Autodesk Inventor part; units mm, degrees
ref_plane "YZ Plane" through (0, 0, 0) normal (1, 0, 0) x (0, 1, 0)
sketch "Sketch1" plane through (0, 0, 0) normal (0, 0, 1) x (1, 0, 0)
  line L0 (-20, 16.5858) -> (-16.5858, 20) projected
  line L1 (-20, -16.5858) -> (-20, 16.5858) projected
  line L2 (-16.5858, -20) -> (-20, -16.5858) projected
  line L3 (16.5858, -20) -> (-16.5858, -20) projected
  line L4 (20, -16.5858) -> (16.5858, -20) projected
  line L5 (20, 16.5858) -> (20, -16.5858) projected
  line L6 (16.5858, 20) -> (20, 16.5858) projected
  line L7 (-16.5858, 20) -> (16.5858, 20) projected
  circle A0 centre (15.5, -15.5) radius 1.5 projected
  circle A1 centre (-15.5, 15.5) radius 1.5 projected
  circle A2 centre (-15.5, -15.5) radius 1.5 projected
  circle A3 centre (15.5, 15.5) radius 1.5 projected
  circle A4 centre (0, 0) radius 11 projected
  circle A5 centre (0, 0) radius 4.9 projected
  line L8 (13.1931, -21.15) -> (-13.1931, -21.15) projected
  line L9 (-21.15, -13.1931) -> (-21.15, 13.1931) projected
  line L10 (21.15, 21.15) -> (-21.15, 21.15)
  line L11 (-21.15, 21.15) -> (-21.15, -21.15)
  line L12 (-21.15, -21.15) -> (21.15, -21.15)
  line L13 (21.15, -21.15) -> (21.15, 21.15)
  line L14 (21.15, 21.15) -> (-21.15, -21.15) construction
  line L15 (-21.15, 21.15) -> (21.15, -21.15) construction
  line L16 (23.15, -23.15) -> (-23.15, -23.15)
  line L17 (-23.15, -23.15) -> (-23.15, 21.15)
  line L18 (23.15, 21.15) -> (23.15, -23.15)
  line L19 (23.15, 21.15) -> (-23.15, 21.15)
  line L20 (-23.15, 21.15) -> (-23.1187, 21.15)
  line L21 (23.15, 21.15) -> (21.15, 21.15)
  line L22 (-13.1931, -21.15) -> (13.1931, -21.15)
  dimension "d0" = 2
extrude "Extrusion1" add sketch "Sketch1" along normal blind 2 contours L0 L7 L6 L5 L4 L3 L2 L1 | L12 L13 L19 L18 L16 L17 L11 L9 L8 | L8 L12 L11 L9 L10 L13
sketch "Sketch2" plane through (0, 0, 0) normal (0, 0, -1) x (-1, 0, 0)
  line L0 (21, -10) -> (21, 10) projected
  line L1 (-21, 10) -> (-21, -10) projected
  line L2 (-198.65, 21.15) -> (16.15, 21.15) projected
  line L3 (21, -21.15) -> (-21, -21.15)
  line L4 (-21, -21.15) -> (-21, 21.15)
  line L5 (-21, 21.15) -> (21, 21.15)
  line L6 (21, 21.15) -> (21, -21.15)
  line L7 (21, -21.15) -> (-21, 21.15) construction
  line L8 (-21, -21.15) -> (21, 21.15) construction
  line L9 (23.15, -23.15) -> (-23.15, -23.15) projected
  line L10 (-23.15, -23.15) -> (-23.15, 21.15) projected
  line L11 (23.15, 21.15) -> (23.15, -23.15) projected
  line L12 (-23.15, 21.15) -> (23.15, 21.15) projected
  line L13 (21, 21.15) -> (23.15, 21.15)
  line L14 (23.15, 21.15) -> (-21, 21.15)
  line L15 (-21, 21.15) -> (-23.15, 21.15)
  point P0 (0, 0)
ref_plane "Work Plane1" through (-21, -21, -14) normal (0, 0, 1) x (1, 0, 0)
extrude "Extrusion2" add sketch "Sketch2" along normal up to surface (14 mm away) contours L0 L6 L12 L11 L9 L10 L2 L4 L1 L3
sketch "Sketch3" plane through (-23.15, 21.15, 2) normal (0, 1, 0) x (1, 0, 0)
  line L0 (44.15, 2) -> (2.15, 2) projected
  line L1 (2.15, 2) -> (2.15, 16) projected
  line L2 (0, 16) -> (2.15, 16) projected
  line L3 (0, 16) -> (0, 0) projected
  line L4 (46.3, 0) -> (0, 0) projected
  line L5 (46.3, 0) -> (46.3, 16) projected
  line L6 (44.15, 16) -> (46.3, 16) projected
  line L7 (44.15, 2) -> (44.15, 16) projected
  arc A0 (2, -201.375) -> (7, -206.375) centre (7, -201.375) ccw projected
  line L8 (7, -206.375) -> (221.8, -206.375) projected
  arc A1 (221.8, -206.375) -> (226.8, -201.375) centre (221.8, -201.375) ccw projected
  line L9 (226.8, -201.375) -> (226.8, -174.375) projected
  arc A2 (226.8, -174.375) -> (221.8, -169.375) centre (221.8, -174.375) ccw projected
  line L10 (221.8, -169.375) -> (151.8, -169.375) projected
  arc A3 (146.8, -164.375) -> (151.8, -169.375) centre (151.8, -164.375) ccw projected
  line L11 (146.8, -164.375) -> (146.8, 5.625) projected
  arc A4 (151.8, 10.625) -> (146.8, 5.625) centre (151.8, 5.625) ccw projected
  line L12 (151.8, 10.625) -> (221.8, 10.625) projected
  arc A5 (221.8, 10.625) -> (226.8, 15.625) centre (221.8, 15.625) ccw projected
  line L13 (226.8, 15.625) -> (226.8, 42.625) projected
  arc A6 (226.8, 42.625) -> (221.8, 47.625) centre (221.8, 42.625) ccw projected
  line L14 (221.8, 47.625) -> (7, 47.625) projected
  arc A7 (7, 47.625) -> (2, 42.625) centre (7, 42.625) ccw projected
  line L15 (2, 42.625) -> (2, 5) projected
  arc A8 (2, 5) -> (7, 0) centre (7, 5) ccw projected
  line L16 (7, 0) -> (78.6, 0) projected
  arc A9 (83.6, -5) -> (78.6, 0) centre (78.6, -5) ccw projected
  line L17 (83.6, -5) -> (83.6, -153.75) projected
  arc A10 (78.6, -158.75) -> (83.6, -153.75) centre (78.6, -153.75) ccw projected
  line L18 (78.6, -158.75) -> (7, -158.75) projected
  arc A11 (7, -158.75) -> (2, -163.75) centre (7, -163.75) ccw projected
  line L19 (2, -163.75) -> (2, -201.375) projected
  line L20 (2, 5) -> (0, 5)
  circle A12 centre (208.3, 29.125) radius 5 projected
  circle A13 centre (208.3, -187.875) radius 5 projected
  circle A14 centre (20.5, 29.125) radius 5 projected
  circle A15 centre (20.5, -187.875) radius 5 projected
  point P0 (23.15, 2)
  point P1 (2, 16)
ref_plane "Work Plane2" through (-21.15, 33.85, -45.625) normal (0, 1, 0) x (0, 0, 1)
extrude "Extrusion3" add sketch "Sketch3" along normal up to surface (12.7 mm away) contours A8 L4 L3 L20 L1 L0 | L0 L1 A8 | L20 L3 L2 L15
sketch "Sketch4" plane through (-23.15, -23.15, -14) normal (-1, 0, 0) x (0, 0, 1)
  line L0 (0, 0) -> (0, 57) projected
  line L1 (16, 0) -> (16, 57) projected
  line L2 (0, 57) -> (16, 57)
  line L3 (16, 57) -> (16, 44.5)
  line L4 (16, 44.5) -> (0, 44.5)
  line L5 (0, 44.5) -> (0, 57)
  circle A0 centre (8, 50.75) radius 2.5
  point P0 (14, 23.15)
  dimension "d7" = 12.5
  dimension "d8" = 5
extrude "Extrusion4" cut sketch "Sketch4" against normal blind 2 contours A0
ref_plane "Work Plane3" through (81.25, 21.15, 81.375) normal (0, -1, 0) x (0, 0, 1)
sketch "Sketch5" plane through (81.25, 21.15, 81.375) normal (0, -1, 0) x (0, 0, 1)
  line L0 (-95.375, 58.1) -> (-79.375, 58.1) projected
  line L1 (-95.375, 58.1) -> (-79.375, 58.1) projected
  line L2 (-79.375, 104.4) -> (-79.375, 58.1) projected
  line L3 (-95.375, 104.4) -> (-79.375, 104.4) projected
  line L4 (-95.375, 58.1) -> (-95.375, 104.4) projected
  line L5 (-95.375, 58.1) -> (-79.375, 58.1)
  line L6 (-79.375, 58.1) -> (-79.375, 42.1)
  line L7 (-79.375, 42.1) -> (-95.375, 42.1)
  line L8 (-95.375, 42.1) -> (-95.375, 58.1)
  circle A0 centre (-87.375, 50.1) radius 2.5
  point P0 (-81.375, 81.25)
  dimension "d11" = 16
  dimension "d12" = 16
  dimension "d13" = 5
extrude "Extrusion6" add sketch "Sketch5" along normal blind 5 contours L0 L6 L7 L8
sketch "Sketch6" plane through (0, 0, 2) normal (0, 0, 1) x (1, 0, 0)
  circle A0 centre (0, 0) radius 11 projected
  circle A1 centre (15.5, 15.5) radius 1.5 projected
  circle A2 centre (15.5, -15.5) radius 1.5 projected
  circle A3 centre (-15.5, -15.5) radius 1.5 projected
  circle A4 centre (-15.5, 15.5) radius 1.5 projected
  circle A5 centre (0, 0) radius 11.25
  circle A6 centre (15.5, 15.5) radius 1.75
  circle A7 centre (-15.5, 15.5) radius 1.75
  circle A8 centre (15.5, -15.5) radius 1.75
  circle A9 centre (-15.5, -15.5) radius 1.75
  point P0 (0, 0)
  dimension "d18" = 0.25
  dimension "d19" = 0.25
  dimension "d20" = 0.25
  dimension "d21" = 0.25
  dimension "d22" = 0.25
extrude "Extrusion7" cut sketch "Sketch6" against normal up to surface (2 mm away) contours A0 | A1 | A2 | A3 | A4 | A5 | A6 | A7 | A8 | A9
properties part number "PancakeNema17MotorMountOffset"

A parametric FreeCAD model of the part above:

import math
import FreeCAD as App
import Part
import Sketcher

V = App.Vector


def add_polygon(sketch, points):
    """Adds a closed chain of lines whose ends are joined by coincident constraints."""
    first, n = sketch.GeometryCount, len(points)
    for a, b in zip(points, points[1:] + points[:1]):
        sketch.addGeometry(Part.LineSegment(App.Vector(*a, 0), App.Vector(*b, 0)), False)
    for i in range(n):
        sketch.addConstraint(Sketcher.Constraint("Coincident", first + i, 2, first + (i + 1) % n, 1))

doc = App.newDocument("Part")
body = doc.addObject("PartDesign::Body", "Body")

# Sketch on XY plane
sketch1 = body.newObject("Sketcher::SketchObject", "Sketch")
sketch1.AttachmentSupport = (doc.getObject("XY_Plane"), [""])
sketch1.MapMode = "FlatFace"
add_polygon(sketch1, [(-23.1, 21.1), (-23.1, -23.1), (23.1, -23.1), (23.1, 21.1)])  # lines 0-3
sketch1.addGeometry(Part.Circle(V(-15.5, -15.5, 0), V(0, 0, 1), 1.5), False)  # 4
sketch1.addGeometry(Part.Circle(V(15.5, -15.5, 0), V(0, 0, 1), 1.5), False)  # 5
sketch1.addGeometry(Part.Circle(V(-15.5, 15.5, 0), V(0, 0, 1), 1.5), False)  # 6
sketch1.addGeometry(Part.Circle(V(0, 0, 0), V(0, 0, 1), 11), False)  # 7
sketch1.addGeometry(Part.Circle(V(15.5, 15.5, 0), V(0, 0, 1), 1.5), False)  # 8
sketch1.addConstraint(Sketcher.Constraint("Vertical", 0))
sketch1.addConstraint(Sketcher.Constraint("Horizontal", 1))
sketch1.addConstraint(Sketcher.Constraint("Vertical", 2))
sketch1.addConstraint(Sketcher.Constraint("Horizontal", 3))
sketch1.addConstraint(Sketcher.Constraint("Coincident", 7, 3, -1, 1))
sketch1.addConstraint(Sketcher.Constraint("Equal", 4, 5))
sketch1.addConstraint(Sketcher.Constraint("Equal", 5, 6))
sketch1.addConstraint(Sketcher.Constraint("Equal", 6, 8))
sketch1.addConstraint(Sketcher.Constraint("Symmetric", 5, 3, 6, 3, -1, 1))
sketch1.addConstraint(Sketcher.Constraint("Symmetric", 4, 3, 8, 3, -1, 1))
sketch1.addConstraint(Sketcher.Constraint("Symmetric", 4, 3, 5, 3, -2))
sketch1.addConstraint(Sketcher.Constraint("Diameter", 4, 3.0))
sketch1.addConstraint(Sketcher.Constraint("Diameter", 7, 22.0))
sketch1.addConstraint(Sketcher.Constraint("DistanceX", 1, 1, 1, 2, 46.3))
sketch1.addConstraint(Sketcher.Constraint("DistanceY", 0, 2, 0, 1, 44.3))
sketch1.addConstraint(Sketcher.Constraint("DistanceX", 4, 3, 5, 3, 31.0))
sketch1.addConstraint(Sketcher.Constraint("DistanceY", 4, 3, 6, 3, 31.0))
sketch1.addConstraint(Sketcher.Constraint("DistanceX", 0, 2, -1, 1, 23.15))
sketch1.addConstraint(Sketcher.Constraint("DistanceY", 0, 2, -1, 1, 23.15))
pad1 = body.newObject("PartDesign::Pad", "Pad")
pad1.Profile = sketch1
pad1.Length = 2

# Sketch on XY plane
sketch2 = body.newObject("Sketcher::SketchObject", "Sketch001")
sketch2.AttachmentSupport = (doc.getObject("XY_Plane"), [""])
sketch2.MapMode = "FlatFace"
add_polygon(sketch2, [(-21, 21.1), (-21, -21.1), (21, -21.1), (21, 21.1), (23.1, 21.1), (23.1, -23.1), (-23.1, -23.1), (-23.1, 21.1)])  # lines 0-7
sketch2.addConstraint(Sketcher.Constraint("Vertical", 0))
sketch2.addConstraint(Sketcher.Constraint("Horizontal", 1))
sketch2.addConstraint(Sketcher.Constraint("Vertical", 2))
sketch2.addConstraint(Sketcher.Constraint("Horizontal", 3))
sketch2.addConstraint(Sketcher.Constraint("Vertical", 4))
sketch2.addConstraint(Sketcher.Constraint("Horizontal", 5))
sketch2.addConstraint(Sketcher.Constraint("Vertical", 6))
sketch2.addConstraint(Sketcher.Constraint("Horizontal", 7))
sketch2.addConstraint(Sketcher.Constraint("Symmetric", 0, 2, 2, 2, -1, 1))
sketch2.addConstraint(Sketcher.Constraint("Symmetric", 3, 2, 6, 2, -2))
sketch2.addConstraint(Sketcher.Constraint("DistanceX", 1, 1, 1, 2, 42.0))
sketch2.addConstraint(Sketcher.Constraint("DistanceX", 5, 2, 5, 1, 46.3))
sketch2.addConstraint(Sketcher.Constraint("DistanceY", 0, 2, 0, 1, 42.3))
sketch2.addConstraint(Sketcher.Constraint("DistanceY", 4, 2, 4, 1, 44.3))
pad2 = body.newObject("PartDesign::Pad", "Pad001")
pad2.Profile = sketch2
pad2.Length = 14
pad2.Reversed = True

# Sketch on XZ plane
sketch3 = body.newObject("Sketcher::SketchObject", "Sketch002")
sketch3.AttachmentSupport = (doc.getObject("XZ_Plane"), [""])
sketch3.MapMode = "FlatFace"
sketch3.AttachmentOffset = App.Placement(V(0, 0, -21.15), App.Rotation())
sketch3.addGeometry(Part.ArcOfCircle(Part.Circle(V(-16.1, -3, 0), V(0, 0, 1), 5), math.radians(90), math.radians(180)), False)
sketch3.addGeometry(Part.LineSegment(V(-21.1, -3, 0), V(-21.1, -14, 0)), False)
sketch3.addGeometry(Part.LineSegment(V(-21.1, -14, 0), V(-23.1, -14, 0)), False)
sketch3.addGeometry(Part.LineSegment(V(-23.1, -14, 0), V(-23.1, 2, 0)), False)
sketch3.addGeometry(Part.LineSegment(V(-23.1, 2, 0), V(-16.1, 2, 0)), False)
sketch3.addConstraint(Sketcher.Constraint("Tangent", 0, 2, 1, 1))
sketch3.addConstraint(Sketcher.Constraint("Coincident", 1, 2, 2, 1))
sketch3.addConstraint(Sketcher.Constraint("Coincident", 2, 2, 3, 1))
sketch3.addConstraint(Sketcher.Constraint("Coincident", 3, 2, 4, 1))
sketch3.addConstraint(Sketcher.Constraint("Tangent", 4, 2, 0, 1))
sketch3.addConstraint(Sketcher.Constraint("Vertical", 1))
sketch3.addConstraint(Sketcher.Constraint("Horizontal", 2))
sketch3.addConstraint(Sketcher.Constraint("Vertical", 3))
sketch3.addConstraint(Sketcher.Constraint("Horizontal", 4))
sketch3.addConstraint(Sketcher.Constraint("Radius", 0, 5.0))
sketch3.addConstraint(Sketcher.Constraint("DistanceX", 2, 2, 2, 1, 2.0))
sketch3.addConstraint(Sketcher.Constraint("DistanceY", 1, 2, 1, 1, 11.0))
sketch3.addConstraint(Sketcher.Constraint("DistanceY", 0, 3, -1, 1, 3.0))
sketch3.addConstraint(Sketcher.Constraint("DistanceX", 0, 3, -1, 1, 16.15))
pad3 = body.newObject("PartDesign::Pad", "Pad002")
pad3.Profile = sketch3
pad3.Length = 12.7
pad3.Reversed = True

# Sketch on YZ plane
sketch4 = body.newObject("Sketcher::SketchObject", "Sketch003")
sketch4.AttachmentSupport = (doc.getObject("YZ_Plane"), [""])
sketch4.MapMode = "FlatFace"
sketch4.AttachmentOffset = App.Placement(V(0, 0, -23.15), App.Rotation())
sketch4.addGeometry(Part.Circle(V(27.6, -6, 0), V(0, 0, 1), 2.5), False)
sketch4.addConstraint(Sketcher.Constraint("Diameter", 0, 5.0))
sketch4.addConstraint(Sketcher.Constraint("DistanceY", 0, 3, -1, 1, 6.0))
sketch4.addConstraint(Sketcher.Constraint("DistanceX", -1, 1, 0, 3, 27.6))
pocket1 = body.newObject("PartDesign::Pocket", "Pocket")
pocket1.Profile = sketch4
pocket1.Length = 2
pocket1.Reversed = True

# Sketch on XZ plane
sketch5 = body.newObject("Sketcher::SketchObject", "Sketch004")
sketch5.AttachmentSupport = (doc.getObject("XZ_Plane"), [""])
sketch5.MapMode = "FlatFace"
sketch5.AttachmentOffset = App.Placement(V(0, 0, -21.15), App.Rotation())
add_polygon(sketch5, [(23.1, 2), (23.1, -14), (39.1, -14), (39.1, 2)])  # lines 0-3
sketch5.addGeometry(Part.Circle(V(31.1, -6, 0), V(0, 0, 1), 2.5), False)  # 4
sketch5.addConstraint(Sketcher.Constraint("Vertical", 0))
sketch5.addConstraint(Sketcher.Constraint("Horizontal", 1))
sketch5.addConstraint(Sketcher.Constraint("Vertical", 2))
sketch5.addConstraint(Sketcher.Constraint("Horizontal", 3))
sketch5.addConstraint(Sketcher.Constraint("Equal", 3, 0))
sketch5.addConstraint(Sketcher.Constraint("Diameter", 4, 5.0))
sketch5.addConstraint(Sketcher.Constraint("DistanceX", 1, 1, 1, 2, 16.0))
sketch5.addConstraint(Sketcher.Constraint("DistanceY", 4, 3, -1, 1, 6.0))
sketch5.addConstraint(Sketcher.Constraint("DistanceY", 0, 2, -1, 1, 14.0))
sketch5.addConstraint(Sketcher.Constraint("DistanceX", 0, 2, 4, 3, 8.0))
sketch5.addConstraint(Sketcher.Constraint("DistanceX", -1, 1, 4, 3, 31.15))
pad4 = body.newObject("PartDesign::Pad", "Pad003")
pad4.Profile = sketch5
pad4.Length = 5

# Sketch on XY plane
sketch6 = body.newObject("Sketcher::SketchObject", "Sketch005")
sketch6.AttachmentSupport = (doc.getObject("XY_Plane"), [""])
sketch6.MapMode = "FlatFace"
sketch6.AttachmentOffset = App.Placement(V(0, 0, 2), App.Rotation())
sketch6.addGeometry(Part.Circle(V(0, 0, 0), V(0, 0, 1), 11.2), False)
sketch6.addGeometry(Part.Circle(V(15.5, 15.5, 0), V(0, 0, 1), 1.8), False)
sketch6.addGeometry(Part.Circle(V(15.5, -15.5, 0), V(0, 0, 1), 1.8), False)
sketch6.addGeometry(Part.Circle(V(-15.5, -15.5, 0), V(0, 0, 1), 1.8), False)
sketch6.addGeometry(Part.Circle(V(-15.5, 15.5, 0), V(0, 0, 1), 1.8), False)
sketch6.addConstraint(Sketcher.Constraint("Coincident", 0, 3, -1, 1))
sketch6.addConstraint(Sketcher.Constraint("Equal", 1, 2))
sketch6.addConstraint(Sketcher.Constraint("Equal", 2, 3))
sketch6.addConstraint(Sketcher.Constraint("Equal", 3, 4))
sketch6.addConstraint(Sketcher.Constraint("Symmetric", 1, 3, 3, 3, -1, 1))
sketch6.addConstraint(Sketcher.Constraint("Symmetric", 2, 3, 4, 3, -1, 1))
sketch6.addConstraint(Sketcher.Constraint("Symmetric", 2, 3, 3, 3, -2))
sketch6.addConstraint(Sketcher.Constraint("Diameter", 0, 22.5))
sketch6.addConstraint(Sketcher.Constraint("Diameter", 1, 3.5))
sketch6.addConstraint(Sketcher.Constraint("DistanceY", 2, 3, 1, 3, 31.0))
sketch6.addConstraint(Sketcher.Constraint("DistanceX", 3, 3, 2, 3, 31.0))
pocket2 = body.newObject("PartDesign::Pocket", "Pocket001")
pocket2.Profile = sketch6
pocket2.Length = 2

doc.recompute()
